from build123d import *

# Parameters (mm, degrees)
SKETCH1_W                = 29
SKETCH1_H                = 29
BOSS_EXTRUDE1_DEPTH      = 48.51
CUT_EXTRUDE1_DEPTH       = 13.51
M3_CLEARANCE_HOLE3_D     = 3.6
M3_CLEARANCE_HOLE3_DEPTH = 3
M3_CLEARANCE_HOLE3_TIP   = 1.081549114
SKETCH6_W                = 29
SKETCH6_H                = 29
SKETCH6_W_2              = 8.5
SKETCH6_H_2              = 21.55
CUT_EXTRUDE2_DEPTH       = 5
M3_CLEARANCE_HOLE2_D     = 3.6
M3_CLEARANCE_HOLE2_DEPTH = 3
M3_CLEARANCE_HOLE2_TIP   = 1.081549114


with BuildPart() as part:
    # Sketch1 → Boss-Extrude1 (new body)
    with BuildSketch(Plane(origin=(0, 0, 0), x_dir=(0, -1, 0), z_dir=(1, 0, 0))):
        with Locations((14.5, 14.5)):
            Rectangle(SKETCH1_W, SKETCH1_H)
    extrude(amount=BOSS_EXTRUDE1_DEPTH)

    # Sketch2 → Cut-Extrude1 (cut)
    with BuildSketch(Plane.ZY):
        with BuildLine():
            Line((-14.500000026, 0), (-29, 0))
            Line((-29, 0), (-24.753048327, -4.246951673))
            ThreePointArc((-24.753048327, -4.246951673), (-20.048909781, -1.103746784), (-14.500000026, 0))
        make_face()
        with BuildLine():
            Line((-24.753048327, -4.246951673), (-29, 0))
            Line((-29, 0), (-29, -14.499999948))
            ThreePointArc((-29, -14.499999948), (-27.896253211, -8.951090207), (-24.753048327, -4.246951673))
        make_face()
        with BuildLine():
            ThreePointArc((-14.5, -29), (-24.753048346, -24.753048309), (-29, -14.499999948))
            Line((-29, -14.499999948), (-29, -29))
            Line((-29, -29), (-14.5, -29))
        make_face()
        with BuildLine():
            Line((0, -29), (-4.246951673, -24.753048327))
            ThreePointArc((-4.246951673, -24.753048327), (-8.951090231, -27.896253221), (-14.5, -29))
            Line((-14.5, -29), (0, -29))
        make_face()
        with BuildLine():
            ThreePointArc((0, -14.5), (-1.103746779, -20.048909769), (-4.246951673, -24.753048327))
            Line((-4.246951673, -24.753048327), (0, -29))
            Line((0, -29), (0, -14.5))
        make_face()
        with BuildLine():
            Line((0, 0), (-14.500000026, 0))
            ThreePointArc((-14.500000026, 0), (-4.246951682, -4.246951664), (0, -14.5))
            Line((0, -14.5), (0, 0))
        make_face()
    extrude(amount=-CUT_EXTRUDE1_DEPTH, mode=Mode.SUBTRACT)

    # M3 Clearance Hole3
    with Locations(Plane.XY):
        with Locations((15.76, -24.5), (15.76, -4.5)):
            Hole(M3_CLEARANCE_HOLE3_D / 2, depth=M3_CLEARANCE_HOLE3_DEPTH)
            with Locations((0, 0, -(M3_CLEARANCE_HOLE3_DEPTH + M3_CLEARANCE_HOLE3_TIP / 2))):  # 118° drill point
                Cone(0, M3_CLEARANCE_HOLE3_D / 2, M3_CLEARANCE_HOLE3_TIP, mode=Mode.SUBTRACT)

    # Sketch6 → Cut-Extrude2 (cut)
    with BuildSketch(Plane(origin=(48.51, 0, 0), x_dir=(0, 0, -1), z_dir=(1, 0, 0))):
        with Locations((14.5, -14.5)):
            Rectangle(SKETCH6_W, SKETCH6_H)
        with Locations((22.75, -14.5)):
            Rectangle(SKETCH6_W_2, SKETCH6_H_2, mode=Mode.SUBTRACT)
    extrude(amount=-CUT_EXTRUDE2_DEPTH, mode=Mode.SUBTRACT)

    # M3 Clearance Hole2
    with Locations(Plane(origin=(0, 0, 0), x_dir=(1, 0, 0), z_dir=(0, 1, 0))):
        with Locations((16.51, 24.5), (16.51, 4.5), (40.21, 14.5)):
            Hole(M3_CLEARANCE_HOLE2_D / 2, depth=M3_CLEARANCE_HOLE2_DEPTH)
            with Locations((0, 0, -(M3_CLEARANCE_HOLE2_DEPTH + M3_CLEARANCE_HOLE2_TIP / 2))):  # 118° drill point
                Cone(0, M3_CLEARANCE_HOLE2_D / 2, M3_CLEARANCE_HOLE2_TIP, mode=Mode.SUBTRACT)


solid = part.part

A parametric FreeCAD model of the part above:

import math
import FreeCAD as App
import Part
import Sketcher
from FreeCAD import Vector
Q = App.Units.Quantity


def add_polygon(sketch, points):
    """Adds a closed chain of lines whose ends are joined by coincident constraints."""
    first, n = sketch.GeometryCount, len(points)
    for a, b in zip(points, points[1:] + points[:1]):
        sketch.addGeometry(Part.LineSegment(App.Vector(*a, 0), App.Vector(*b, 0)), False)
    for i in range(n):
        sketch.addConstraint(Sketcher.Constraint("Coincident", first + i, 2, first + (i + 1) % n, 1))

doc = App.newDocument("Part")
body = doc.addObject("PartDesign::Body", "Body")

sketch1 = doc.addObject("Sketcher::SketchObject", "Sketch")
body.addObject(sketch1)
sketch1.AttachmentSupport = (doc.YZ_Plane, [""])
sketch1.MapMode = "FlatFace"
add_polygon(sketch1, [(0, -29), (0, 0), (-29, 0), (-29, -29)])
sketch1.addConstraint([
    Sketcher.Constraint("Vertical", 0),
    Sketcher.Constraint("Horizontal", 1),
    Sketcher.Constraint("Vertical", 2),
    Sketcher.Constraint("Horizontal", 3),
    Sketcher.Constraint("Coincident", 0, 2, -1, 1),
    Sketcher.Constraint("Equal", 3, 0),
    Sketcher.Constraint("DistanceX", 1, 2, 1, 1, Q("29 mm")),
])
pad1 = doc.addObject("PartDesign::Pad", "Pad")
body.addObject(pad1)
pad1.Profile = sketch1
pad1.Length = 48.51

sketch2 = doc.addObject("Sketcher::SketchObject", "Sketch001")
body.addObject(sketch2)
sketch2.AttachmentSupport = (doc.YZ_Plane, [""])
sketch2.MapMode = "FlatFace"
sketch2.addGeometry([
    Part.LineSegment(Vector(0, -14.5, 0), Vector(0, -29, 0)),
    Part.LineSegment(Vector(0, -29, 0), Vector(-14.5, -29, 0)),
    Part.ArcOfCircle(Part.Circle(Vector(-14.5, -14.5, 0), Vector(0, 0, 1), 14.5), math.radians(-90), math.radians(-45)),
    Part.ArcOfCircle(Part.Circle(Vector(-14.5, -14.5, 0), Vector(0, 0, 1), 14.5), math.radians(-45), math.radians(0)),
    Part.ArcOfCircle(Part.Circle(Vector(-14.5, -14.5, 0), Vector(0, 0, 1), 14.5), math.radians(180), math.radians(270)),
    Part.LineSegment(Vector(-14.5, -29, 0), Vector(-29, -29, 0)),
    Part.LineSegment(Vector(-29, -29, 0), Vector(-29, -14.5, 0)),
    Part.ArcOfCircle(Part.Circle(Vector(-14.5, -14.5, 0), Vector(0, 0, 1), 14.5), math.radians(135), math.radians(180)),
    Part.LineSegment(Vector(-29, -14.5, 0), Vector(-29, 0, 0)),
    Part.LineSegment(Vector(-29, 0, 0), Vector(-14.5, 0, 0)),
    Part.ArcOfCircle(Part.Circle(Vector(-14.5, -14.5, 0), Vector(0, 0, 1), 14.5), math.radians(90), math.radians(135)),
    Part.LineSegment(Vector(0, 0, 0), Vector(0, -14.5, 0)),
    Part.ArcOfCircle(Part.Circle(Vector(-14.5, -14.5, 0), Vector(0, 0, 1), 14.5), math.radians(0), math.radians(90)),
    Part.LineSegment(Vector(-14.5, 0, 0), Vector(0, 0, 0)),
], False)
sketch2.addConstraint([
    Sketcher.Constraint("Coincident", 0, 2, 1, 1),
    Sketcher.Constraint("Tangent", 1, 2, 2, 1),
    Sketcher.Constraint("Tangent", 2, 2, 3, 1),
    Sketcher.Constraint("Tangent", 3, 2, 0, 1),
    Sketcher.Constraint("Tangent", 4, 2, 5, 1),
    Sketcher.Constraint("Coincident", 5, 2, 6, 1),
    Sketcher.Constraint("Tangent", 6, 2, 4, 1),
    Sketcher.Constraint("Tangent", 7, 2, 8, 1),
    Sketcher.Constraint("Coincident", 8, 2, 9, 1),
    Sketcher.Constraint("Tangent", 9, 2, 10, 1),
    Sketcher.Constraint("Tangent", 10, 2, 7, 1),
    Sketcher.Constraint("Tangent", 11, 2, 12, 1),
    Sketcher.Constraint("Tangent", 12, 2, 13, 1),
    Sketcher.Constraint("Coincident", 13, 2, 11, 1),
    Sketcher.Constraint("Vertical", 0),
    Sketcher.Constraint("Horizontal", 1),
    Sketcher.Constraint("Horizontal", 5),
    Sketcher.Constraint("Vertical", 6),
    Sketcher.Constraint("Vertical", 8),
    Sketcher.Constraint("Horizontal", 9),
    Sketcher.Constraint("Vertical", 11),
    Sketcher.Constraint("Horizontal", 13),
    Sketcher.Constraint("Coincident", 13, 2, -1, 1),
    Sketcher.Constraint("Coincident", 4, 3, 2, 3),
    Sketcher.Constraint("Coincident", 7, 3, 2, 3),
    Sketcher.Constraint("Coincident", 12, 3, 2, 3),
    Sketcher.Constraint("Coincident", 11, 2, 3, 2),
    Sketcher.Constraint("Coincident", 12, 2, 9, 2),
    Sketcher.Constraint("Equal", 3, 4),
    Sketcher.Constraint("Radius", 2, Q("14.5 mm")),
    Sketcher.Constraint("DistanceX", 2, 2, -1, 1, Q("4.246952 mm")),
    Sketcher.Constraint("DistanceX", 10, 2, -1, 1, Q("24.753048 mm")),
])
pocket1 = doc.addObject("PartDesign::Pocket", "Pocket")
body.addObject(pocket1)
pocket1.Profile = sketch2
pocket1.Length = 13.51
pocket1.Reversed = True

sketch3 = doc.addObject("Sketcher::SketchObject", "Sketch002")
body.addObject(sketch3)
sketch3.AttachmentSupport = (doc.XY_Plane, [""])
sketch3.MapMode = "FlatFace"
sketch3.addGeometry([
    Part.Circle(Vector(15.76, -24.5, 0), Vector(0, 0, 1), 1.8),
    Part.Circle(Vector(15.76, -4.5, 0), Vector(0, 0, 1), 1.8),
], False)
sketch3.addConstraint([
    Sketcher.Constraint("Equal", 0, 1),
    Sketcher.Constraint("Vertical", 0, 3, 1, 3),
    Sketcher.Constraint("Diameter", 0, Q("3.6 mm")),
    Sketcher.Constraint("DistanceY", 0, 3, 1, 3, Q("20 mm")),
    Sketcher.Constraint("DistanceY", 0, 3, -1, 1, Q("24.5 mm")),
    Sketcher.Constraint("DistanceX", -1, 1, 0, 3, Q("15.76 mm")),
])
doc.recompute()
hole = doc.addObject("PartDesign::Hole", "Hole")
body.addObject(hole)
hole.Profile = sketch3
hole.ThreadType = "None"
hole.Diameter = 3.6
hole.DepthType = "Dimension"
hole.Depth = 3
hole.DrillPoint = "Angled"
hole.DrillPointAngle = 118

sketch4 = doc.addObject("Sketcher::SketchObject", "Sketch003")
body.addObject(sketch4)
sketch4.AttachmentSupport = (doc.YZ_Plane, [""])
sketch4.MapMode = "FlatFace"
sketch4.AttachmentOffset = App.Placement(Vector(0, 0, 48.51), App.Rotation())
add_polygon(sketch4, [(0, 0), (-29, 0), (-29, -29), (0, -29)])
add_polygon(sketch4, [(-25.275, -27), (-25.275, -18.5), (-3.725, -18.5), (-3.725, -27)])
sketch4.addConstraint([
    Sketcher.Constraint("Horizontal", 0),
    Sketcher.Constraint("Vertical", 1),
    Sketcher.Constraint("Horizontal", 2),
    Sketcher.Constraint("Vertical", 3),
    Sketcher.Constraint("Vertical", 4),
    Sketcher.Constraint("Horizontal", 5),
    Sketcher.Constraint("Vertical", 6),
    Sketcher.Constraint("Horizontal", 7),
    Sketcher.Constraint("Coincident", 3, 2, -1, 1),
    Sketcher.Constraint("Equal", 2, 1),
    Sketcher.Constraint("DistanceX", 0, 2, 0, 1, Q("29 mm")),
    Sketcher.Constraint("DistanceY", 4, 1, 4, 2, Q("8.5 mm")),
    Sketcher.Constraint("DistanceY", 6, 2, -1, 1, Q("27 mm")),
    Sketcher.Constraint("DistanceX", 5, 1, 5, 2, Q("21.55 mm")),
    Sketcher.Constraint("DistanceX", 4, 2, -1, 1, Q("25.275 mm")),
])
pocket2 = doc.addObject("PartDesign::Pocket", "Pocket001")
body.addObject(pocket2)
pocket2.Profile = sketch4
pocket2.Length = 5

sketch5 = doc.addObject("Sketcher::SketchObject", "Sketch004")
body.addObject(sketch5)
sketch5.AttachmentSupport = (doc.XZ_Plane, [""])
sketch5.MapMode = "FlatFace"
sketch5.addGeometry([
    Part.Circle(Vector(16.51, -24.5, 0), Vector(0, 0, 1), 1.8),
    Part.Circle(Vector(16.51, -4.5, 0), Vector(0, 0, 1), 1.8),
    Part.Circle(Vector(40.21, -14.5, 0), Vector(0, 0, 1), 1.8),
], False)
sketch5.addConstraint([
    Sketcher.Constraint("Equal", 0, 1),
    Sketcher.Constraint("Equal", 1, 2),
    Sketcher.Constraint("Vertical", 0, 3, 1, 3),
    Sketcher.Constraint("Diameter", 0, Q("3.6 mm")),
    Sketcher.Constraint("DistanceY", 0, 3, 1, 3, Q("20 mm")),
    Sketcher.Constraint("DistanceY", 0, 3, 2, 3, Q("10 mm")),
    Sketcher.Constraint("DistanceY", 0, 3, -1, 1, Q("24.5 mm")),
    Sketcher.Constraint("DistanceX", 0, 3, 2, 3, Q("23.7 mm")),
    Sketcher.Constraint("DistanceX", -1, 1, 0, 3, Q("16.51 mm")),
])
doc.recompute()
hole2 = doc.addObject("PartDesign::Hole", "Hole001")
body.addObject(hole2)
hole2.Profile = sketch5
hole2.ThreadType = "None"
hole2.Diameter = 3.6
hole2.DepthType = "Dimension"
hole2.Depth = 3
hole2.DrillPoint = "Angled"
hole2.DrillPointAngle = 118
hole2.Reversed = True

doc.recompute()
